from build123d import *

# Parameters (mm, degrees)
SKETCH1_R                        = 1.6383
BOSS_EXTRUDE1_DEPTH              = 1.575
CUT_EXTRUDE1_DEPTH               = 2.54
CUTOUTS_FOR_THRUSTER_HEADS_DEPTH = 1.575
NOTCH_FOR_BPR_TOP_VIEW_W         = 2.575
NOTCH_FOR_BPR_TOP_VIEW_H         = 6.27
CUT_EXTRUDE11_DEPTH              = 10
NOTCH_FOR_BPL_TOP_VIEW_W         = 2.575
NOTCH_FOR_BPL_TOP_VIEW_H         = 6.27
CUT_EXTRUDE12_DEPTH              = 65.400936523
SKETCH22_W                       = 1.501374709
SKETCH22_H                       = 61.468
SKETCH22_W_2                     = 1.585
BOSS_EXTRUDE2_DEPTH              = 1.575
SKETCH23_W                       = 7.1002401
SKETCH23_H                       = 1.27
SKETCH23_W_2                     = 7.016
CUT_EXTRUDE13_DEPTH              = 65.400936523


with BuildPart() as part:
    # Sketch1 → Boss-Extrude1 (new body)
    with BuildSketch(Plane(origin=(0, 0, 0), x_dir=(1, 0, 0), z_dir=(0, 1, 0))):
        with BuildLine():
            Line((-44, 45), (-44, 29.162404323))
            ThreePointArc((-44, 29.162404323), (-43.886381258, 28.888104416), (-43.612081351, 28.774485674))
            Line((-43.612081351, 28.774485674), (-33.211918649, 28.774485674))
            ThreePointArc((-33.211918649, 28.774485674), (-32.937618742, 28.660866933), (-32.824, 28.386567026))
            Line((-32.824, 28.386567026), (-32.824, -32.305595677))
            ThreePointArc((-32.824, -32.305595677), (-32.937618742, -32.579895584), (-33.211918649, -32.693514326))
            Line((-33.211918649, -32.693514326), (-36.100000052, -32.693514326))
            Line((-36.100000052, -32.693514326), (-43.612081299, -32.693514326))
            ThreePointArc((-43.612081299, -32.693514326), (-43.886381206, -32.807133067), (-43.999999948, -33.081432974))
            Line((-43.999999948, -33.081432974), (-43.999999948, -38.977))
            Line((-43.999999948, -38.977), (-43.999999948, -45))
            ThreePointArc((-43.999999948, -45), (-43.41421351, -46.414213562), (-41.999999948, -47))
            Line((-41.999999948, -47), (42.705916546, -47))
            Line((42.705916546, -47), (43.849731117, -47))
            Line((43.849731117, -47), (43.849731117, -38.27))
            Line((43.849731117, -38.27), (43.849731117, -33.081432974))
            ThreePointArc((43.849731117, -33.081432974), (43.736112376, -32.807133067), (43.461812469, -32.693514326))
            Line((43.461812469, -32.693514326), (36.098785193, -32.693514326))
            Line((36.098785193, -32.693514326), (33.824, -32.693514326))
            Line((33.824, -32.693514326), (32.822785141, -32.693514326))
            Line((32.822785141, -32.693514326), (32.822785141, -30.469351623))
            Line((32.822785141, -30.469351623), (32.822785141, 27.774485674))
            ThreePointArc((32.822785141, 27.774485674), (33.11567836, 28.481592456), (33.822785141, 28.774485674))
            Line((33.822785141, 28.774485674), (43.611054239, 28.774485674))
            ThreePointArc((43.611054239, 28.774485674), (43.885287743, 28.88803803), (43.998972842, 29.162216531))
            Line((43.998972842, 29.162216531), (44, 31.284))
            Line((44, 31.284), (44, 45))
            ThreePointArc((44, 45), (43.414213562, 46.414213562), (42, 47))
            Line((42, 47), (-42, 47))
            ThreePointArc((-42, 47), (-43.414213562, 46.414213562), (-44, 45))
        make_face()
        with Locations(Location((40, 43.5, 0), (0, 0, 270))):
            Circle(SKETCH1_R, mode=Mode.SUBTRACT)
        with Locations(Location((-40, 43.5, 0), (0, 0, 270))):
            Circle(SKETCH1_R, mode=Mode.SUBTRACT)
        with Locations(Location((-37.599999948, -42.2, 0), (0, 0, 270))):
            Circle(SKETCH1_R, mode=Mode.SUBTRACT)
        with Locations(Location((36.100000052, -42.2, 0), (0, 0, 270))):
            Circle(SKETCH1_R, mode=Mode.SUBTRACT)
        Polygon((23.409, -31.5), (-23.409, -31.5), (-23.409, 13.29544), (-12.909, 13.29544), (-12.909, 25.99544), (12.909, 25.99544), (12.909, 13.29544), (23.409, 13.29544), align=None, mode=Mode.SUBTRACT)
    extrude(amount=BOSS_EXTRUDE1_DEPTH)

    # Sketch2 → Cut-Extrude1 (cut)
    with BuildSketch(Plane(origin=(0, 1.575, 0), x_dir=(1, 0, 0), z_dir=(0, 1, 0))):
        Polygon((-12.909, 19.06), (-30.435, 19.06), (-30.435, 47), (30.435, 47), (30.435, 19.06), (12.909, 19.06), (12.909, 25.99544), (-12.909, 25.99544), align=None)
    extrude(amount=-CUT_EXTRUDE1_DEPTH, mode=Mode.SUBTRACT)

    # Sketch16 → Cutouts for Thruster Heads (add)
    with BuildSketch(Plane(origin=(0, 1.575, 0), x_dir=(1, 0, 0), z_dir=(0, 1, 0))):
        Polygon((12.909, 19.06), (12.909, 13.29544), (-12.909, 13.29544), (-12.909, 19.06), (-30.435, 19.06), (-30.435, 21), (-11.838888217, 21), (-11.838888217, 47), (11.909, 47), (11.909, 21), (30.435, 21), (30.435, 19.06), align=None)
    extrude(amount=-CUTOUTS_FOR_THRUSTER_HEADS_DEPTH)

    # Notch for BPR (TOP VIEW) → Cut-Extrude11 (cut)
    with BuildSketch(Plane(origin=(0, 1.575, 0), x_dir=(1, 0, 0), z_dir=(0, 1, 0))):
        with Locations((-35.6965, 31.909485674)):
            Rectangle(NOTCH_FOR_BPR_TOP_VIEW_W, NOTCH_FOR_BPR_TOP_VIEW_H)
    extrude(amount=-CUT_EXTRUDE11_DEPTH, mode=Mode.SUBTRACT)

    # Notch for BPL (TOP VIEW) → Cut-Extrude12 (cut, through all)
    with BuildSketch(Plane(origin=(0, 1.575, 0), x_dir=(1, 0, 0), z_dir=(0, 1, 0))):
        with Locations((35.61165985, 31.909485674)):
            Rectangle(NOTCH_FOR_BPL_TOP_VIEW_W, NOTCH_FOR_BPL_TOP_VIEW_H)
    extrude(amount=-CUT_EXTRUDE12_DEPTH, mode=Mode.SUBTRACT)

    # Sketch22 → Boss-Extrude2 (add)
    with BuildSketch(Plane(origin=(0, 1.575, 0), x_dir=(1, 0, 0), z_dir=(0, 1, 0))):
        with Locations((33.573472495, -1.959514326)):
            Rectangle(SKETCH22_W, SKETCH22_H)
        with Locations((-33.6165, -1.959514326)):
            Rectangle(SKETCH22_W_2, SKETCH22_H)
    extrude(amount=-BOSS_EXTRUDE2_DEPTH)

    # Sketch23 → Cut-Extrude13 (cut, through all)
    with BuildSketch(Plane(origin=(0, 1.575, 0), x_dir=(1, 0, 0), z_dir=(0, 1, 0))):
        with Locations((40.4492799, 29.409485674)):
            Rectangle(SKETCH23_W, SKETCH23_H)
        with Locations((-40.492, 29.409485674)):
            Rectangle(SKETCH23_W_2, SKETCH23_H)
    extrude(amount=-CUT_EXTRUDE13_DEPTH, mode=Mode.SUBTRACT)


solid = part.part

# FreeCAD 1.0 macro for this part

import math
import FreeCAD as App
import Part
import Sketcher

V = App.Vector
Q = App.Units.Quantity


def add_polygon(sketch, points):
    """Adds a closed chain of lines whose ends are joined by coincident constraints."""
    first, n = sketch.GeometryCount, len(points)
    for a, b in zip(points, points[1:] + points[:1]):
        sketch.addGeometry(Part.LineSegment(App.Vector(*a, 0), App.Vector(*b, 0)), False)
    for i in range(n):
        sketch.addConstraint(Sketcher.Constraint("Coincident", first + i, 2, first + (i + 1) % n, 1))

doc = App.newDocument("Part")
body = doc.addObject("PartDesign::Body", "Body")

# Sketch on XZ plane
sketch1 = body.newObject("Sketcher::SketchObject", "Sketch")
sketch1.AttachmentSupport = (doc.getObject("XZ_Plane"), [""])
sketch1.MapMode = "FlatFace"
sketch1.addGeometry(Part.LineSegment(V(-44, -45, 0), V(-44, -29.16, 0)), False)  # 0
sketch1.addGeometry(Part.ArcOfCircle(Part.Circle(V(-43.61, -29.16, 0), V(0, 0, 1), 0.39), math.radians(90), math.radians(180)), False)  # 1
sketch1.addGeometry(Part.LineSegment(V(-43.61, -28.77, 0), V(-33.21, -28.77, 0)), False)  # 2
sketch1.addGeometry(Part.ArcOfCircle(Part.Circle(V(-33.21, -28.39, 0), V(0, 0, 1), 0.39), math.radians(-90), math.radians(0)), False)  # 3
sketch1.addGeometry(Part.LineSegment(V(-32.82, -28.39, 0), V(-32.82, 32.31, 0)), False)  # 4
sketch1.addGeometry(Part.ArcOfCircle(Part.Circle(V(-33.21, 32.31, 0), V(0, 0, 1), 0.39), math.radians(0), math.radians(90)), False)  # 5
sketch1.addGeometry(Part.LineSegment(V(-33.21, 32.69, 0), V(-43.61, 32.69, 0)), False)  # 6
sketch1.addGeometry(Part.ArcOfCircle(Part.Circle(V(-43.61, 33.08, 0), V(0, 0, 1), 0.39), math.radians(180), math.radians(270)), False)  # 7
sketch1.addGeometry(Part.LineSegment(V(-44, 33.08, 0), V(-44, 45, 0)), False)  # 8
sketch1.addGeometry(Part.ArcOfCircle(Part.Circle(V(-42, 45, 0), V(0, 0, 1), 2), math.radians(90), math.radians(180)), False)  # 9
sketch1.addGeometry(Part.LineSegment(V(-42, 47, 0), V(43.85, 47, 0)), False)  # 10
sketch1.addGeometry(Part.LineSegment(V(43.85, 47, 0), V(43.85, 33.08, 0)), False)  # 11
sketch1.addGeometry(Part.ArcOfCircle(Part.Circle(V(43.46, 33.08, 0), V(0, 0, 1), 0.39), math.radians(-90), math.radians(0)), False)  # 12
sketch1.addGeometry(Part.LineSegment(V(43.46, 32.69, 0), V(32.82, 32.69, 0)), False)  # 13
sketch1.addGeometry(Part.LineSegment(V(32.82, 32.69, 0), V(32.82, -27.77, 0)), False)  # 14
sketch1.addGeometry(Part.ArcOfCircle(Part.Circle(V(33.82, -27.77, 0), V(0, 0, 1), 1), math.radians(180), math.radians(270)), False)  # 15
sketch1.addGeometry(Part.LineSegment(V(33.82, -28.77, 0), V(43.61, -28.77, 0)), False)  # 16
sketch1.addGeometry(Part.ArcOfCircle(Part.Circle(V(43.61, -29.16, 0), V(0, 0, 1), 0.39), math.radians(0), math.radians(90)), False)  # 17
sketch1.addGeometry(Part.LineSegment(V(44, -29.16, 0), V(44, -31.28, 0)), False)  # 18
sketch1.addGeometry(Part.LineSegment(V(44, -31.28, 0), V(44, -45, 0)), False)  # 19
sketch1.addGeometry(Part.ArcOfCircle(Part.Circle(V(42, -45, 0), V(0, 0, 1), 2), math.radians(-90), math.radians(0)), False)  # 20
sketch1.addGeometry(Part.LineSegment(V(42, -47, 0), V(-42, -47, 0)), False)  # 21
sketch1.addGeometry(Part.ArcOfCircle(Part.Circle(V(-42, -45, 0), V(0, 0, 1), 2), math.radians(-180), math.radians(-90)), False)  # 22
sketch1.addGeometry(Part.Circle(V(-37.6, 42.2, 0), V(0, 0, 1), 1.64), False)  # 23
sketch1.addGeometry(Part.Circle(V(36.1, 42.2, 0), V(0, 0, 1), 1.64), False)  # 24
add_polygon(sketch1, [(23.41, -13.3), (23.41, 31.5), (-23.41, 31.5), (-23.41, -13.3), (-12.91, -13.3), (-12.91, -26), (12.91, -26), (12.91, -13.3)])  # lines 25-32
sketch1.addGeometry(Part.Circle(V(-40, -43.5, 0), V(0, 0, 1), 1.64), False)  # 33
sketch1.addGeometry(Part.Circle(V(40, -43.5, 0), V(0, 0, 1), 1.64), False)  # 34
sketch1.addConstraint(Sketcher.Constraint("Tangent", 0, 2, 1, 2))
sketch1.addConstraint(Sketcher.Constraint("Tangent", 1, 1, 2, 1))
sketch1.addConstraint(Sketcher.Constraint("Tangent", 2, 2, 3, 1))
sketch1.addConstraint(Sketcher.Constraint("Tangent", 3, 2, 4, 1))
sketch1.addConstraint(Sketcher.Constraint("Tangent", 4, 2, 5, 1))
sketch1.addConstraint(Sketcher.Constraint("Tangent", 5, 2, 6, 1))
sketch1.addConstraint(Sketcher.Constraint("Tangent", 6, 2, 7, 2))
sketch1.addConstraint(Sketcher.Constraint("Tangent", 7, 1, 8, 1))
sketch1.addConstraint(Sketcher.Constraint("Tangent", 8, 2, 9, 2))
sketch1.addConstraint(Sketcher.Constraint("Tangent", 9, 1, 10, 1))
sketch1.addConstraint(Sketcher.Constraint("Coincident", 10, 2, 11, 1))
sketch1.addConstraint(Sketcher.Constraint("Tangent", 11, 2, 12, 2))
sketch1.addConstraint(Sketcher.Constraint("Tangent", 12, 1, 13, 1))
sketch1.addConstraint(Sketcher.Constraint("Coincident", 13, 2, 14, 1))
sketch1.addConstraint(Sketcher.Constraint("Tangent", 14, 2, 15, 1))
sketch1.addConstraint(Sketcher.Constraint("Tangent", 15, 2, 16, 1))
sketch1.addConstraint(Sketcher.Constraint("Tangent", 16, 2, 17, 2))
sketch1.addConstraint(Sketcher.Constraint("Tangent", 17, 1, 18, 1))
sketch1.addConstraint(Sketcher.Constraint("Coincident", 18, 2, 19, 1))
sketch1.addConstraint(Sketcher.Constraint("Tangent", 19, 2, 20, 2))
sketch1.addConstraint(Sketcher.Constraint("Tangent", 20, 1, 21, 1))
sketch1.addConstraint(Sketcher.Constraint("Tangent", 21, 2, 22, 2))
sketch1.addConstraint(Sketcher.Constraint("Tangent", 22, 1, 0, 1))
sketch1.addConstraint(Sketcher.Constraint("Vertical", 0))
sketch1.addConstraint(Sketcher.Constraint("Horizontal", 2))
sketch1.addConstraint(Sketcher.Constraint("Vertical", 4))
sketch1.addConstraint(Sketcher.Constraint("Horizontal", 6))
sketch1.addConstraint(Sketcher.Constraint("Vertical", 8))
sketch1.addConstraint(Sketcher.Constraint("Horizontal", 10))
sketch1.addConstraint(Sketcher.Constraint("Vertical", 11))
sketch1.addConstraint(Sketcher.Constraint("Horizontal", 13))
sketch1.addConstraint(Sketcher.Constraint("Vertical", 14))
sketch1.addConstraint(Sketcher.Constraint("Horizontal", 16))
sketch1.addConstraint(Sketcher.Constraint("Vertical", 19))
sketch1.addConstraint(Sketcher.Constraint("Horizontal", 21))
sketch1.addConstraint(Sketcher.Constraint("Vertical", 25))
sketch1.addConstraint(Sketcher.Constraint("Horizontal", 26))
sketch1.addConstraint(Sketcher.Constraint("Vertical", 27))
sketch1.addConstraint(Sketcher.Constraint("Horizontal", 28))
sketch1.addConstraint(Sketcher.Constraint("Vertical", 29))
sketch1.addConstraint(Sketcher.Constraint("Horizontal", 30))
sketch1.addConstraint(Sketcher.Constraint("Vertical", 31))
sketch1.addConstraint(Sketcher.Constraint("Horizontal", 32))
sketch1.addConstraint(Sketcher.Constraint("Equal", 1, 3))
sketch1.addConstraint(Sketcher.Constraint("Equal", 3, 5))
sketch1.addConstraint(Sketcher.Constraint("Equal", 5, 7))
sketch1.addConstraint(Sketcher.Constraint("Equal", 7, 12))
sketch1.addConstraint(Sketcher.Constraint("Equal", 12, 17))
sketch1.addConstraint(Sketcher.Constraint("Equal", 9, 20))
sketch1.addConstraint(Sketcher.Constraint("Equal", 20, 22))
sketch1.addConstraint(Sketcher.Constraint("Equal", 23, 24))
sketch1.addConstraint(Sketcher.Constraint("Equal", 24, 33))
sketch1.addConstraint(Sketcher.Constraint("Equal", 33, 34))
sketch1.addConstraint(Sketcher.Constraint("Symmetric", 9, 3, 20, 3, -1, 1))
sketch1.addConstraint(Sketcher.Constraint("Symmetric", 33, 3, 34, 3, -2))
sketch1.addConstraint(Sketcher.Constraint("Symmetric", 28, 2, 31, 2, -2))
sketch1.addConstraint(Sketcher.Constraint("Horizontal", 7, 3, 12, 3))
sketch1.addConstraint(Sketcher.Constraint("Horizontal", 1, 3, 17, 3))
sketch1.addConstraint(Sketcher.Constraint("Horizontal", 23, 3, 24, 3))
sketch1.addConstraint(Sketcher.Constraint("Vertical", 1, 3, 7, 3))
sketch1.addConstraint(Sketcher.Constraint("Equal", 28, 32))
sketch1.addConstraint(Sketcher.Constraint("Diameter", 23, Q("0.129 in")))
sketch1.addConstraint(Sketcher.Constraint("DistanceY", 29, 2, 29, 1, Q("0.5 in")))
sketch1.addConstraint(Sketcher.Constraint("DistanceY", 19, 2, 19, 1, Q("0.54 in")))
sketch1.addConstraint(Sketcher.Constraint("Radius", 9, Q("2 mm")))
sketch1.addConstraint(Sketcher.Constraint("Radius", 15, Q("1 mm")))
sketch1.addConstraint(Sketcher.Constraint("DistanceY", 1, 3, 5, 3, Q("2.42 in")))
sketch1.addConstraint(Sketcher.Constraint("DistanceX", 0, 2, 3, 2, Q("0.44 in")))
sketch1.addConstraint(Sketcher.Constraint("DistanceY", 25, 1, 25, 2, Q("1.7636 in")))
sketch1.addConstraint(Sketcher.Constraint("Radius", 1, Q("0.387919 mm")))
sketch1.addConstraint(Sketcher.Constraint("DistanceX", 21, 2, 21, 1, Q("84 mm")))
sketch1.addConstraint(Sketcher.Constraint("DistanceX", 26, 2, 26, 1, Q("46.818 mm")))
sketch1.addConstraint(Sketcher.Constraint("DistanceX", 28, 1, 28, 2, Q("10.5 mm")))
sketch1.addConstraint(Sketcher.Constraint("DistanceX", 10, 1, 10, 2, Q("85.849731 mm")))
sketch1.addConstraint(Sketcher.Constraint("DistanceX", 16, 1, 16, 2, Q("9.788269 mm")))
sketch1.addConstraint(Sketcher.Constraint("DistanceY", -1, 1, 9, 3, Q("45 mm")))
sketch1.addConstraint(Sketcher.Constraint("DistanceX", 23, 3, -1, 1, Q("37.6 mm")))
sketch1.addConstraint(Sketcher.Constraint("DistanceY", -1, 1, 23, 3, Q("42.2 mm")))
sketch1.addConstraint(Sketcher.Constraint("DistanceX", -1, 1, 24, 3, Q("36.1 mm")))
sketch1.addConstraint(Sketcher.Constraint("DistanceX", 33, 3, -1, 1, Q("40 mm")))
sketch1.addConstraint(Sketcher.Constraint("DistanceY", 33, 3, -1, 1, Q("43.5 mm")))
sketch1.addConstraint(Sketcher.Constraint("DistanceY", -1, 1, 25, 2, Q("31.5 mm")))
sketch1.addConstraint(Sketcher.Constraint("DistanceX", 13, 2, 13, 1, Q("10.639027 mm")))
sketch1.addConstraint(Sketcher.Constraint("DistanceY", 0, 1, 0, 2, Q("15.837596 mm")))
pad1 = body.newObject("PartDesign::Pad", "Pad")
pad1.Profile = sketch1
pad1.Length = 1.575
pad1.Reversed = True

# Sketch on XZ plane
sketch2 = body.newObject("Sketcher::SketchObject", "Sketch001")
sketch2.AttachmentSupport = (doc.getObject("XZ_Plane"), [""])
sketch2.MapMode = "FlatFace"
sketch2.AttachmentOffset = App.Placement(V(0, 0, -1.575), App.Rotation())
add_polygon(sketch2, [(-30, -19), (-13, -19), (-13, -26), (13, -26), (13, -19), (30, -19), (30, -47), (-30, -47)])  # lines 0-7
sketch2.addConstraint(Sketcher.Constraint("Horizontal", 0))
sketch2.addConstraint(Sketcher.Constraint("Vertical", 1))
sketch2.addConstraint(Sketcher.Constraint("Horizontal", 2))
sketch2.addConstraint(Sketcher.Constraint("Vertical", 3))
sketch2.addConstraint(Sketcher.Constraint("Horizontal", 4))
sketch2.addConstraint(Sketcher.Constraint("Vertical", 5))
sketch2.addConstraint(Sketcher.Constraint("Horizontal", 6))
sketch2.addConstraint(Sketcher.Constraint("Vertical", 7))
sketch2.addConstraint(Sketcher.Constraint("Symmetric", 0, 2, 3, 2, -2))
sketch2.addConstraint(Sketcher.Constraint("Equal", 0, 4))
sketch2.addConstraint(Sketcher.Constraint("DistanceY", 5, 2, 5, 1, Q("1.1 in")))
sketch2.addConstraint(Sketcher.Constraint("DistanceX", 0, 1, 0, 2, Q("0.69 in")))
sketch2.addConstraint(Sketcher.Constraint("DistanceX", 2, 1, 2, 2, Q("25.818 mm")))
sketch2.addConstraint(Sketcher.Constraint("DistanceY", 1, 2, 1, 1, Q("6.93544 mm")))
sketch2.addConstraint(Sketcher.Constraint("DistanceY", 0, 2, -1, 1, Q("19.06 mm")))
pocket1 = body.newObject("PartDesign::Pocket", "Pocket")
pocket1.Profile = sketch2
pocket1.Length = Q("0.1 in")
pocket1.Reversed = True

# Sketch on XZ plane
sketch3 = body.newObject("Sketcher::SketchObject", "Sketch002")
sketch3.AttachmentSupport = (doc.getObject("XZ_Plane"), [""])
sketch3.MapMode = "FlatFace"
sketch3.AttachmentOffset = App.Placement(V(0, 0, -1.575), App.Rotation())
add_polygon(sketch3, [(12.9, -13.3), (12.9, -19.1), (30.4, -19.1), (30.4, -21), (11.9, -21), (11.9, -47), (-11.8, -47), (-11.8, -21), (-30.4, -21), (-30.4, -19.1), (-12.9, -19.1), (-12.9, -13.3)])  # lines 0-11
sketch3.addConstraint(Sketcher.Constraint("Vertical", 0))
sketch3.addConstraint(Sketcher.Constraint("Horizontal", 1))
sketch3.addConstraint(Sketcher.Constraint("Vertical", 2))
sketch3.addConstraint(Sketcher.Constraint("Horizontal", 3))
sketch3.addConstraint(Sketcher.Constraint("Vertical", 4))
sketch3.addConstraint(Sketcher.Constraint("Horizontal", 5))
sketch3.addConstraint(Sketcher.Constraint("Vertical", 6))
sketch3.addConstraint(Sketcher.Constraint("Horizontal", 7))
sketch3.addConstraint(Sketcher.Constraint("Vertical", 8))
sketch3.addConstraint(Sketcher.Constraint("Horizontal", 9))
sketch3.addConstraint(Sketcher.Constraint("Vertical", 10))
sketch3.addConstraint(Sketcher.Constraint("Horizontal", 11))
sketch3.addConstraint(Sketcher.Constraint("Symmetric", 2, 2, 7, 2, -2))
sketch3.addConstraint(Sketcher.Constraint("Symmetric", 0, 2, 9, 2, -2))
sketch3.addConstraint(Sketcher.Constraint("DistanceX", 1, 1, 1, 2, Q("0.69 in")))
sketch3.addConstraint(Sketcher.Constraint("DistanceY", 4, 2, 0, 2, Q("1.1 in")))
sketch3.addConstraint(Sketcher.Constraint("DistanceX", 3, 2, 3, 1, Q("18.526 mm")))
sketch3.addConstraint(Sketcher.Constraint("DistanceX", 11, 1, 11, 2, Q("25.818 mm")))
sketch3.addConstraint(Sketcher.Constraint("DistanceY", 2, 2, 2, 1, Q("1.94 mm")))
sketch3.addConstraint(Sketcher.Constraint("DistanceX", 5, 2, 5, 1, Q("23.747888 mm")))
sketch3.addConstraint(Sketcher.Constraint("DistanceY", 0, 2, 0, 1, Q("5.76456 mm")))
sketch3.addConstraint(Sketcher.Constraint("DistanceY", 0, 2, -1, 1, Q("19.06 mm")))
pad2 = body.newObject("PartDesign::Pad", "Pad001")
pad2.Profile = sketch3
pad2.Length = 1.575

# Sketch on XZ plane
sketch4 = body.newObject("Sketcher::SketchObject", "Sketch003")
sketch4.AttachmentSupport = (doc.getObject("XZ_Plane"), [""])
sketch4.MapMode = "FlatFace"
sketch4.AttachmentOffset = App.Placement(V(0, 0, -1.575), App.Rotation())
add_polygon(sketch4, [(-37, -35), (-37, -28.8), (-34.4, -28.8), (-34.4, -35)])  # lines 0-3
sketch4.addConstraint(Sketcher.Constraint("Vertical", 0))
sketch4.addConstraint(Sketcher.Constraint("Horizontal", 1))
sketch4.addConstraint(Sketcher.Constraint("Vertical", 2))
sketch4.addConstraint(Sketcher.Constraint("Horizontal", 3))
sketch4.addConstraint(Sketcher.Constraint("DistanceX", 1, 1, 1, 2, Q("2.575 mm")))
sketch4.addConstraint(Sketcher.Constraint("DistanceY", 0, 1, 0, 2, Q("6.27 mm")))
sketch4.addConstraint(Sketcher.Constraint("DistanceX", 0, 2, -1, 1, Q("36.984 mm")))
sketch4.addConstraint(Sketcher.Constraint("DistanceY", 0, 2, -1, 1, Q("28.774486 mm")))
pocket2 = body.newObject("PartDesign::Pocket", "Pocket001")
pocket2.Profile = sketch4
pocket2.Length = 10
pocket2.Reversed = True

# Sketch on XZ plane
sketch5 = body.newObject("Sketcher::SketchObject", "Sketch004")
sketch5.AttachmentSupport = (doc.getObject("XZ_Plane"), [""])
sketch5.MapMode = "FlatFace"
sketch5.AttachmentOffset = App.Placement(V(0, 0, -1.575), App.Rotation())
add_polygon(sketch5, [(34.3, -35), (34.3, -28.8), (36.9, -28.8), (36.9, -35)])  # lines 0-3
sketch5.addConstraint(Sketcher.Constraint("Vertical", 0))
sketch5.addConstraint(Sketcher.Constraint("Horizontal", 1))
sketch5.addConstraint(Sketcher.Constraint("Vertical", 2))
sketch5.addConstraint(Sketcher.Constraint("Horizontal", 3))
sketch5.addConstraint(Sketcher.Constraint("DistanceX", 1, 1, 1, 2, Q("2.575 mm")))
sketch5.addConstraint(Sketcher.Constraint("DistanceY", 0, 1, 0, 2, Q("6.27 mm")))
sketch5.addConstraint(Sketcher.Constraint("DistanceX", -1, 1, 0, 2, Q("34.32416 mm")))
sketch5.addConstraint(Sketcher.Constraint("DistanceY", 0, 2, -1, 1, Q("28.774486 mm")))
pocket3 = body.newObject("PartDesign::Pocket", "Pocket002")
pocket3.Profile = sketch5
pocket3.Type = "ThroughAll"
pocket3.Reversed = True

# Sketch on XZ plane
sketch6 = body.newObject("Sketcher::SketchObject", "Sketch005")
sketch6.AttachmentSupport = (doc.getObject("XZ_Plane"), [""])
sketch6.MapMode = "FlatFace"
sketch6.AttachmentOffset = App.Placement(V(0, 0, -1.575), App.Rotation())
add_polygon(sketch6, [(32.8, -28.8), (32.8, 32.7), (34.3, 32.7), (34.3, -28.8)])  # lines 0-3
add_polygon(sketch6, [(-34.4, -28.8), (-34.4, 32.7), (-32.8, 32.7), (-32.8, -28.8)])  # lines 4-7
sketch6.addConstraint(Sketcher.Constraint("Vertical", 0))
sketch6.addConstraint(Sketcher.Constraint("Horizontal", 1))
sketch6.addConstraint(Sketcher.Constraint("Vertical", 2))
sketch6.addConstraint(Sketcher.Constraint("Horizontal", 3))
sketch6.addConstraint(Sketcher.Constraint("Vertical", 4))
sketch6.addConstraint(Sketcher.Constraint("Horizontal", 5))
sketch6.addConstraint(Sketcher.Constraint("Vertical", 6))
sketch6.addConstraint(Sketcher.Constraint("Horizontal", 7))
sketch6.addConstraint(Sketcher.Constraint("Horizontal", 1, 2, 4, 2))
sketch6.addConstraint(Sketcher.Constraint("Horizontal", 3, 2, 6, 2))
sketch6.addConstraint(Sketcher.Constraint("DistanceY", 0, 1, 0, 2, Q("2.42 in")))
sketch6.addConstraint(Sketcher.Constraint("DistanceX", 5, 1, 5, 2, Q("1.585 mm")))
sketch6.addConstraint(Sketcher.Constraint("DistanceX", 4, 2, -1, 1, Q("34.409 mm")))
sketch6.addConstraint(Sketcher.Constraint("DistanceX", 1, 1, 1, 2, Q("1.501375 mm")))
sketch6.addConstraint(Sketcher.Constraint("DistanceX", -1, 1, 1, 2, Q("34.32416 mm")))
sketch6.addConstraint(Sketcher.Constraint("DistanceY", -1, 1, 0, 2, Q("32.693514 mm")))
pad3 = body.newObject("PartDesign::Pad", "Pad002")
pad3.Profile = sketch6
pad3.Length = 1.575

# Sketch on XZ plane
sketch7 = body.newObject("Sketcher::SketchObject", "Sketch006")
sketch7.AttachmentSupport = (doc.getObject("XZ_Plane"), [""])
sketch7.MapMode = "FlatFace"
sketch7.AttachmentOffset = App.Placement(V(0, 0, -1.575), App.Rotation())
add_polygon(sketch7, [(36.9, -30), (36.9, -28.8), (44, -28.8), (44, -30)])  # lines 0-3
add_polygon(sketch7, [(-44, -30), (-44, -28.8), (-37, -28.8), (-37, -30)])  # lines 4-7
sketch7.addConstraint(Sketcher.Constraint("Vertical", 0))
sketch7.addConstraint(Sketcher.Constraint("Horizontal", 1))
sketch7.addConstraint(Sketcher.Constraint("Vertical", 2))
sketch7.addConstraint(Sketcher.Constraint("Horizontal", 3))
sketch7.addConstraint(Sketcher.Constraint("Vertical", 4))
sketch7.addConstraint(Sketcher.Constraint("Horizontal", 5))
sketch7.addConstraint(Sketcher.Constraint("Vertical", 6))
sketch7.addConstraint(Sketcher.Constraint("Horizontal", 7))
sketch7.addConstraint(Sketcher.Constraint("Horizontal", 1, 2, 4, 2))
sketch7.addConstraint(Sketcher.Constraint("Horizontal", 3, 2, 6, 2))
sketch7.addConstraint(Sketcher.Constraint("DistanceY", 0, 1, 0, 2, Q("0.05 in")))
sketch7.addConstraint(Sketcher.Constraint("DistanceX", 5, 1, 5, 2, Q("7.016 mm")))
sketch7.addConstraint(Sketcher.Constraint("DistanceX", 1, 1, 1, 2, Q("7.10024 mm")))
sketch7.addConstraint(Sketcher.Constraint("DistanceX", -1, 1, 1, 2, Q("43.9994 mm")))
sketch7.addConstraint(Sketcher.Constraint("DistanceX", 4, 2, -1, 1, Q("44 mm")))
sketch7.addConstraint(Sketcher.Constraint("DistanceY", 0, 2, -1, 1, Q("28.774486 mm")))
pocket4 = body.newObject("PartDesign::Pocket", "Pocket003")
pocket4.Profile = sketch7
pocket4.Type = "ThroughAll"
pocket4.Reversed = True

doc.recompute()
